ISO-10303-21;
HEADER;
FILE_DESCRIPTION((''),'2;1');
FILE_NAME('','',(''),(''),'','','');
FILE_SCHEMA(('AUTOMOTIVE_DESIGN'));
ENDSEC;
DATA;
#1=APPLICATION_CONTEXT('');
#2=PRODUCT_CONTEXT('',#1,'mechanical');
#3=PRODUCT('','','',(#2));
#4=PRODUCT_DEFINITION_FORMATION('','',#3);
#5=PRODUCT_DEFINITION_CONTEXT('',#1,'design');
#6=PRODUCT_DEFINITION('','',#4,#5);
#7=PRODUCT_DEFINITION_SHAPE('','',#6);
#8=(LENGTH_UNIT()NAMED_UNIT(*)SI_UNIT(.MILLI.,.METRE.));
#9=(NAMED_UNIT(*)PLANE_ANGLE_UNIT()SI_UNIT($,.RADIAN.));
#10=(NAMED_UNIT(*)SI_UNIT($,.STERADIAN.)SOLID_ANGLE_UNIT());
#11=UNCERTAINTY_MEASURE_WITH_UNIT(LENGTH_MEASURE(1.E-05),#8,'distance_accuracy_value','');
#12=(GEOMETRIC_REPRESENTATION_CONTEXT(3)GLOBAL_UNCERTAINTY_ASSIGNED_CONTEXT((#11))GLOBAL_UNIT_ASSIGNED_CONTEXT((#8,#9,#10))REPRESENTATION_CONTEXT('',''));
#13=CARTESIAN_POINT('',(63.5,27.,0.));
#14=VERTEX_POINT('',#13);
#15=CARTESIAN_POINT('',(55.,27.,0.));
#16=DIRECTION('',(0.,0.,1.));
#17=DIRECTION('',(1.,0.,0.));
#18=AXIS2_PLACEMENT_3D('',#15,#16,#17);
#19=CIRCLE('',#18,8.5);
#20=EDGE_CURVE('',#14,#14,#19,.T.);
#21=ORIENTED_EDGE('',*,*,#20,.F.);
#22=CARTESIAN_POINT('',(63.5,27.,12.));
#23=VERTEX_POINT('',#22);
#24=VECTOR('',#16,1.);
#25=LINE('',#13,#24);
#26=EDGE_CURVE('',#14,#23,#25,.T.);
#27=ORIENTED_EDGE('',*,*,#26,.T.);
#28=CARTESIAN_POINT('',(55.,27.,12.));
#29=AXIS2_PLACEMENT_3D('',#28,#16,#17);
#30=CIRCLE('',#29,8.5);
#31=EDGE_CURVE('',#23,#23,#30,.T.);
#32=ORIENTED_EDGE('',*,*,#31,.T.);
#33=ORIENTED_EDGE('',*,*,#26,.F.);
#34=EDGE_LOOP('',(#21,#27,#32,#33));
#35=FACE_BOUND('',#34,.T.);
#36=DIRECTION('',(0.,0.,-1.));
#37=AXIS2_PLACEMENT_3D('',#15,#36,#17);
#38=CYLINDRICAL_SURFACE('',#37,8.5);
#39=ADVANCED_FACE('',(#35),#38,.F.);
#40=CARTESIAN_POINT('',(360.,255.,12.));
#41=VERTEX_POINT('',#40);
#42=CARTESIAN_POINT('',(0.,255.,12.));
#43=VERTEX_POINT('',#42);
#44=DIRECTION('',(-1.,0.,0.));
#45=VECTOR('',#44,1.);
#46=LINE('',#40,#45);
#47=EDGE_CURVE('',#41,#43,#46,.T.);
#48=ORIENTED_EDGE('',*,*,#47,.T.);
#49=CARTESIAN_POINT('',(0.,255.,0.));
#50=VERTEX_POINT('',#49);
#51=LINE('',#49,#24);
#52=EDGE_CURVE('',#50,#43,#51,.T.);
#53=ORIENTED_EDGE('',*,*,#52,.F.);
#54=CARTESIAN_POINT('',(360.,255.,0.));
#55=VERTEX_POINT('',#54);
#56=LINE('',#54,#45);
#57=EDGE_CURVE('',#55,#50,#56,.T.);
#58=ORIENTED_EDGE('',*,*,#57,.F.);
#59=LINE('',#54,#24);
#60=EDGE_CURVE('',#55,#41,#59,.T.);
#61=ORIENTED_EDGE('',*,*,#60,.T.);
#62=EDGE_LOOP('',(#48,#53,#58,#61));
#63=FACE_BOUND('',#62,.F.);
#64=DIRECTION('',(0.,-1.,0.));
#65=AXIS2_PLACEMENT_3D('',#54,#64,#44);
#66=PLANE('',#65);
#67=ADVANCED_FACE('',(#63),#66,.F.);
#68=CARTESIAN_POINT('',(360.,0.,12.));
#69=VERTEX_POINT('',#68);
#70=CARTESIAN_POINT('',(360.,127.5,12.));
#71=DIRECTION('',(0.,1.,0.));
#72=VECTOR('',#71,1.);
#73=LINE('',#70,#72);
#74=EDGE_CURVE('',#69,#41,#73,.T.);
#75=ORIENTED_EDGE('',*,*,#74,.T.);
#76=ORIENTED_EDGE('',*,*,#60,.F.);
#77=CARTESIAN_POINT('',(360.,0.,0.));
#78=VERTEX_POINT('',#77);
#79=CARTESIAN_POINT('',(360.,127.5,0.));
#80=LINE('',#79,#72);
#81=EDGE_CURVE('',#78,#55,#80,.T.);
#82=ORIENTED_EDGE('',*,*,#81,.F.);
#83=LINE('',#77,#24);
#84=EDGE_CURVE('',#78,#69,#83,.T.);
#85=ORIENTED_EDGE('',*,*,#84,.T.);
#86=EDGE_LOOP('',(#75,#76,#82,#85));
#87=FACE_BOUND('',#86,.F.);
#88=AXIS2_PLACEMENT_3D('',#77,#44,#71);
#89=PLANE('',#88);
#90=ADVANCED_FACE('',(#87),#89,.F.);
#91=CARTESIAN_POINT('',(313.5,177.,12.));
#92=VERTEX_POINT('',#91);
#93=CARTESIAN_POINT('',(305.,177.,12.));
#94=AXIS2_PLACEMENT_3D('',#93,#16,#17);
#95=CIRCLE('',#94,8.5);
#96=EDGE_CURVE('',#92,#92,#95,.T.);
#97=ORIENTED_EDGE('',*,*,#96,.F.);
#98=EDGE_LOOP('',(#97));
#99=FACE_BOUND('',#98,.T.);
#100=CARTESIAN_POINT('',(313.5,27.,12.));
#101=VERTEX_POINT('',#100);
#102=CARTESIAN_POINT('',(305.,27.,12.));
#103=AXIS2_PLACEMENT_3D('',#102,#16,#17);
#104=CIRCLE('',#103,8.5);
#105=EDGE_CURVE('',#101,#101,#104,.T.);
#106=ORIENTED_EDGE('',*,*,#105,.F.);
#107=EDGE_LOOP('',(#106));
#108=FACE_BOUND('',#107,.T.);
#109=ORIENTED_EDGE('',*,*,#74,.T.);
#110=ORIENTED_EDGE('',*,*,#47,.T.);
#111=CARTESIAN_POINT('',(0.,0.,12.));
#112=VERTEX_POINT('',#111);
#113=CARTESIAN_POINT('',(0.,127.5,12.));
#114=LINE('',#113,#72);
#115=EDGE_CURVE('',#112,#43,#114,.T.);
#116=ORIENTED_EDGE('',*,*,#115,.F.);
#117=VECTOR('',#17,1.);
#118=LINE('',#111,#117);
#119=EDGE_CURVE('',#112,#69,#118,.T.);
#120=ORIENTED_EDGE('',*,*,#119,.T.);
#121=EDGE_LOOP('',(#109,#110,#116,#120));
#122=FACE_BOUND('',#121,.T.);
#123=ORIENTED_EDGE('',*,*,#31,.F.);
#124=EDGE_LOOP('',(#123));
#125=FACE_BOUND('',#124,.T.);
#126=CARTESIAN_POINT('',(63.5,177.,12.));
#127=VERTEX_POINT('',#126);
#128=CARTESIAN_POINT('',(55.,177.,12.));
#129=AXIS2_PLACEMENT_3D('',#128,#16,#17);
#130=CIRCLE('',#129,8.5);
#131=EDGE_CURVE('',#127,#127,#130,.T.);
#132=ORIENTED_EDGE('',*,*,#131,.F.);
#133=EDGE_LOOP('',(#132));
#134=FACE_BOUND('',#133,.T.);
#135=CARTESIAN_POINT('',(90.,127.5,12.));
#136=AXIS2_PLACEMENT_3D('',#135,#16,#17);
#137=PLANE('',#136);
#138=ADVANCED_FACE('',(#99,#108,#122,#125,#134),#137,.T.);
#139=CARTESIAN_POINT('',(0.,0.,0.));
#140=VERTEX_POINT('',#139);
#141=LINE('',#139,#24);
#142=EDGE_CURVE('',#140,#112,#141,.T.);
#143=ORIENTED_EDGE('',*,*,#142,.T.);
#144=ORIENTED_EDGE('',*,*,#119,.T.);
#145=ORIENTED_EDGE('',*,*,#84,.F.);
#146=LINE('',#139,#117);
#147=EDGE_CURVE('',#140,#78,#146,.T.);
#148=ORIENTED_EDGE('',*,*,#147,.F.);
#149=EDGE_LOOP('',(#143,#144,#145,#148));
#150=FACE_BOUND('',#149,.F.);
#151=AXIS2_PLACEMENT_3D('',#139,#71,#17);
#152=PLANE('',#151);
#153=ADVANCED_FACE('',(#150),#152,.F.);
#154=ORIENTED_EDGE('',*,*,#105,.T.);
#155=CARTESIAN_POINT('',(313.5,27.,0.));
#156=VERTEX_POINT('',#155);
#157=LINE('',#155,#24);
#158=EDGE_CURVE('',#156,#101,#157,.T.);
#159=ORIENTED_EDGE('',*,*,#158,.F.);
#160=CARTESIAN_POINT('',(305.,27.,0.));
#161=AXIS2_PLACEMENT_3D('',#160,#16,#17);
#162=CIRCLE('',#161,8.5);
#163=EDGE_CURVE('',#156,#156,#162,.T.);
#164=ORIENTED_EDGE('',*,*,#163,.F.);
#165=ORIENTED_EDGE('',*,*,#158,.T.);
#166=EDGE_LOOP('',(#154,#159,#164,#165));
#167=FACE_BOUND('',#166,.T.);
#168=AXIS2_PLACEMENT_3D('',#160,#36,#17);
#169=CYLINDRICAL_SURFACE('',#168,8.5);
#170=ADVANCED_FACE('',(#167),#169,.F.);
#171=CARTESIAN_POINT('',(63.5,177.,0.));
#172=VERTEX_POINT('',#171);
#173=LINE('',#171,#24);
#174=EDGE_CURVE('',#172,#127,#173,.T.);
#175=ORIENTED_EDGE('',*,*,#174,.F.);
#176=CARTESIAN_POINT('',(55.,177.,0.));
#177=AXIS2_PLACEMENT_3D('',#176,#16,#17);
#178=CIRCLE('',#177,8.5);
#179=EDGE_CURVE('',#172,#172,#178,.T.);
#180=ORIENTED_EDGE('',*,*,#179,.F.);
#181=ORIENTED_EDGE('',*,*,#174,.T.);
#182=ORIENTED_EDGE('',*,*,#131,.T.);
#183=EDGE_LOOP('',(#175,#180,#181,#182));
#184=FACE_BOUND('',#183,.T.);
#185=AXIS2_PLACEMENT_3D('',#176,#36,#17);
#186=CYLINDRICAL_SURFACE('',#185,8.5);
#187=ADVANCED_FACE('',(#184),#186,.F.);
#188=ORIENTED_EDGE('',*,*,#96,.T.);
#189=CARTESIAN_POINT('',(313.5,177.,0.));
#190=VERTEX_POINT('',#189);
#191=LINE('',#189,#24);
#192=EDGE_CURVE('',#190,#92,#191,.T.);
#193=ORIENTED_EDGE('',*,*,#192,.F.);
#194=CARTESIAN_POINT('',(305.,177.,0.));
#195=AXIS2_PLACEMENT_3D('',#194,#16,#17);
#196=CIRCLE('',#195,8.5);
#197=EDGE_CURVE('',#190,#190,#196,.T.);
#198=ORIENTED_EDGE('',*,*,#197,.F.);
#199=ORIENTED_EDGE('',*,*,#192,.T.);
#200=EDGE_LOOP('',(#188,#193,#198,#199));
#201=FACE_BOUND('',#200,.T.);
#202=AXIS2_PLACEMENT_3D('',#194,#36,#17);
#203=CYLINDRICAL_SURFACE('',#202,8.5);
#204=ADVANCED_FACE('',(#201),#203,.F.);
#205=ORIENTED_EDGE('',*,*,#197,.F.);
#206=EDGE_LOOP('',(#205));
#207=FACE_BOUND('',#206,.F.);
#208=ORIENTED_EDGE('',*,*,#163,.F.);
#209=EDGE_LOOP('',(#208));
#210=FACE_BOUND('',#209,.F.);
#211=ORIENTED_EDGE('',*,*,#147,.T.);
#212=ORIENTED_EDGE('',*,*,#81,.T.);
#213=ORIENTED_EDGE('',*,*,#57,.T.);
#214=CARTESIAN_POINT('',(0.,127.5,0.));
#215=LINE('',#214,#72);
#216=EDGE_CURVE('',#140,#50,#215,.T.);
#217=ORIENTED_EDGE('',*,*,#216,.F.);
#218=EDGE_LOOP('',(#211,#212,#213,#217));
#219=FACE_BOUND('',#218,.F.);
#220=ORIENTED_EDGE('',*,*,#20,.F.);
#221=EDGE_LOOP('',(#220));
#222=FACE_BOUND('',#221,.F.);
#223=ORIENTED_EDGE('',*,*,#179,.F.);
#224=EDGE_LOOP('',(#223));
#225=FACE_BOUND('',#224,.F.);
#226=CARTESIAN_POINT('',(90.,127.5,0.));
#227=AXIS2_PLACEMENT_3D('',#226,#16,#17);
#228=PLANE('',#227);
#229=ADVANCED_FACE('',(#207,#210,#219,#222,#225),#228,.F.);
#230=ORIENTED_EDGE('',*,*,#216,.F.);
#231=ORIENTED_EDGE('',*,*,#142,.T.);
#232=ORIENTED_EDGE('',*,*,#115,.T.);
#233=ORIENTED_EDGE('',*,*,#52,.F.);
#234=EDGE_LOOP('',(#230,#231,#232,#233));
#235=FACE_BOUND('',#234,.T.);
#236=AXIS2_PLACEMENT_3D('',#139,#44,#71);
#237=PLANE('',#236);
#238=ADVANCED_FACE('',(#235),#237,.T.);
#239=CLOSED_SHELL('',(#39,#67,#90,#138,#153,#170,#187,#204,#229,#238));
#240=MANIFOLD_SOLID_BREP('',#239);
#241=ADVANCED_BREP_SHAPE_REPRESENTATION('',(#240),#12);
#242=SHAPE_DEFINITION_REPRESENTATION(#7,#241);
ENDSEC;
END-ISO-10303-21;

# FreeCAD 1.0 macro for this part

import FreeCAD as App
import Part
import Sketcher
from FreeCAD import Vector


def add_polygon(sketch, points):
    """Adds a closed chain of lines whose ends are joined by coincident constraints."""
    first, n = sketch.GeometryCount, len(points)
    for a, b in zip(points, points[1:] + points[:1]):
        sketch.addGeometry(Part.LineSegment(App.Vector(*a, 0), App.Vector(*b, 0)), False)
    for i in range(n):
        sketch.addConstraint(Sketcher.Constraint("Coincident", first + i, 2, first + (i + 1) % n, 1))

doc = App.newDocument("Part")
body = doc.addObject("PartDesign::Body", "Body")

# Sketch on XY plane
sketch1 = body.newObject("Sketcher::SketchObject", "Sketch")
sketch1.AttachmentSupport = (doc.getObject("XY_Plane"), [""])
sketch1.MapMode = "FlatFace"
add_polygon(sketch1, [(0, 255), (0, 0), (360, 0), (360, 255)])  # lines 0-3
sketch1.addGeometry(Part.Circle(Vector(55, 27, 0), Vector(0, 0, 1), 8.5), False)  # 4
sketch1.addGeometry(Part.Circle(Vector(305, 27, 0), Vector(0, 0, 1), 8.5), False)  # 5
sketch1.addGeometry(Part.Circle(Vector(55, 177, 0), Vector(0, 0, 1), 8.5), False)  # 6
sketch1.addGeometry(Part.Circle(Vector(305, 177, 0), Vector(0, 0, 1), 8.5), False)  # 7
sketch1.addConstraint([
    Sketcher.Constraint("Vertical", 0),
    Sketcher.Constraint("Horizontal", 1),
    Sketcher.Constraint("Vertical", 2),
    Sketcher.Constraint("Horizontal", 3),
    Sketcher.Constraint("Coincident", 0, 2, -1, 1),
    Sketcher.Constraint("Equal", 4, 5),
    Sketcher.Constraint("Equal", 5, 6),
    Sketcher.Constraint("Equal", 6, 7),
    Sketcher.Constraint("Horizontal", 4, 3, 5, 3),
    Sketcher.Constraint("Horizontal", 6, 3, 7, 3),
    Sketcher.Constraint("Vertical", 4, 3, 6, 3),
    Sketcher.Constraint("Vertical", 5, 3, 7, 3),
    Sketcher.Constraint("Diameter", 4, 17.0),
    Sketcher.Constraint("DistanceX", 1, 1, 1, 2, 360.0),
    Sketcher.Constraint("DistanceY", 0, 2, 0, 1, 255.0),
    Sketcher.Constraint("DistanceX", -1, 1, 4, 3, 55.0),
    Sketcher.Constraint("DistanceY", -1, 1, 4, 3, 27.0),
    Sketcher.Constraint("DistanceX", -1, 1, 5, 3, 305.0),
    Sketcher.Constraint("DistanceY", -1, 1, 6, 3, 177.0),
])
pad1 = body.newObject("PartDesign::Pad", "Pad")
pad1.Profile = sketch1
pad1.Length = 12

doc.recompute()
